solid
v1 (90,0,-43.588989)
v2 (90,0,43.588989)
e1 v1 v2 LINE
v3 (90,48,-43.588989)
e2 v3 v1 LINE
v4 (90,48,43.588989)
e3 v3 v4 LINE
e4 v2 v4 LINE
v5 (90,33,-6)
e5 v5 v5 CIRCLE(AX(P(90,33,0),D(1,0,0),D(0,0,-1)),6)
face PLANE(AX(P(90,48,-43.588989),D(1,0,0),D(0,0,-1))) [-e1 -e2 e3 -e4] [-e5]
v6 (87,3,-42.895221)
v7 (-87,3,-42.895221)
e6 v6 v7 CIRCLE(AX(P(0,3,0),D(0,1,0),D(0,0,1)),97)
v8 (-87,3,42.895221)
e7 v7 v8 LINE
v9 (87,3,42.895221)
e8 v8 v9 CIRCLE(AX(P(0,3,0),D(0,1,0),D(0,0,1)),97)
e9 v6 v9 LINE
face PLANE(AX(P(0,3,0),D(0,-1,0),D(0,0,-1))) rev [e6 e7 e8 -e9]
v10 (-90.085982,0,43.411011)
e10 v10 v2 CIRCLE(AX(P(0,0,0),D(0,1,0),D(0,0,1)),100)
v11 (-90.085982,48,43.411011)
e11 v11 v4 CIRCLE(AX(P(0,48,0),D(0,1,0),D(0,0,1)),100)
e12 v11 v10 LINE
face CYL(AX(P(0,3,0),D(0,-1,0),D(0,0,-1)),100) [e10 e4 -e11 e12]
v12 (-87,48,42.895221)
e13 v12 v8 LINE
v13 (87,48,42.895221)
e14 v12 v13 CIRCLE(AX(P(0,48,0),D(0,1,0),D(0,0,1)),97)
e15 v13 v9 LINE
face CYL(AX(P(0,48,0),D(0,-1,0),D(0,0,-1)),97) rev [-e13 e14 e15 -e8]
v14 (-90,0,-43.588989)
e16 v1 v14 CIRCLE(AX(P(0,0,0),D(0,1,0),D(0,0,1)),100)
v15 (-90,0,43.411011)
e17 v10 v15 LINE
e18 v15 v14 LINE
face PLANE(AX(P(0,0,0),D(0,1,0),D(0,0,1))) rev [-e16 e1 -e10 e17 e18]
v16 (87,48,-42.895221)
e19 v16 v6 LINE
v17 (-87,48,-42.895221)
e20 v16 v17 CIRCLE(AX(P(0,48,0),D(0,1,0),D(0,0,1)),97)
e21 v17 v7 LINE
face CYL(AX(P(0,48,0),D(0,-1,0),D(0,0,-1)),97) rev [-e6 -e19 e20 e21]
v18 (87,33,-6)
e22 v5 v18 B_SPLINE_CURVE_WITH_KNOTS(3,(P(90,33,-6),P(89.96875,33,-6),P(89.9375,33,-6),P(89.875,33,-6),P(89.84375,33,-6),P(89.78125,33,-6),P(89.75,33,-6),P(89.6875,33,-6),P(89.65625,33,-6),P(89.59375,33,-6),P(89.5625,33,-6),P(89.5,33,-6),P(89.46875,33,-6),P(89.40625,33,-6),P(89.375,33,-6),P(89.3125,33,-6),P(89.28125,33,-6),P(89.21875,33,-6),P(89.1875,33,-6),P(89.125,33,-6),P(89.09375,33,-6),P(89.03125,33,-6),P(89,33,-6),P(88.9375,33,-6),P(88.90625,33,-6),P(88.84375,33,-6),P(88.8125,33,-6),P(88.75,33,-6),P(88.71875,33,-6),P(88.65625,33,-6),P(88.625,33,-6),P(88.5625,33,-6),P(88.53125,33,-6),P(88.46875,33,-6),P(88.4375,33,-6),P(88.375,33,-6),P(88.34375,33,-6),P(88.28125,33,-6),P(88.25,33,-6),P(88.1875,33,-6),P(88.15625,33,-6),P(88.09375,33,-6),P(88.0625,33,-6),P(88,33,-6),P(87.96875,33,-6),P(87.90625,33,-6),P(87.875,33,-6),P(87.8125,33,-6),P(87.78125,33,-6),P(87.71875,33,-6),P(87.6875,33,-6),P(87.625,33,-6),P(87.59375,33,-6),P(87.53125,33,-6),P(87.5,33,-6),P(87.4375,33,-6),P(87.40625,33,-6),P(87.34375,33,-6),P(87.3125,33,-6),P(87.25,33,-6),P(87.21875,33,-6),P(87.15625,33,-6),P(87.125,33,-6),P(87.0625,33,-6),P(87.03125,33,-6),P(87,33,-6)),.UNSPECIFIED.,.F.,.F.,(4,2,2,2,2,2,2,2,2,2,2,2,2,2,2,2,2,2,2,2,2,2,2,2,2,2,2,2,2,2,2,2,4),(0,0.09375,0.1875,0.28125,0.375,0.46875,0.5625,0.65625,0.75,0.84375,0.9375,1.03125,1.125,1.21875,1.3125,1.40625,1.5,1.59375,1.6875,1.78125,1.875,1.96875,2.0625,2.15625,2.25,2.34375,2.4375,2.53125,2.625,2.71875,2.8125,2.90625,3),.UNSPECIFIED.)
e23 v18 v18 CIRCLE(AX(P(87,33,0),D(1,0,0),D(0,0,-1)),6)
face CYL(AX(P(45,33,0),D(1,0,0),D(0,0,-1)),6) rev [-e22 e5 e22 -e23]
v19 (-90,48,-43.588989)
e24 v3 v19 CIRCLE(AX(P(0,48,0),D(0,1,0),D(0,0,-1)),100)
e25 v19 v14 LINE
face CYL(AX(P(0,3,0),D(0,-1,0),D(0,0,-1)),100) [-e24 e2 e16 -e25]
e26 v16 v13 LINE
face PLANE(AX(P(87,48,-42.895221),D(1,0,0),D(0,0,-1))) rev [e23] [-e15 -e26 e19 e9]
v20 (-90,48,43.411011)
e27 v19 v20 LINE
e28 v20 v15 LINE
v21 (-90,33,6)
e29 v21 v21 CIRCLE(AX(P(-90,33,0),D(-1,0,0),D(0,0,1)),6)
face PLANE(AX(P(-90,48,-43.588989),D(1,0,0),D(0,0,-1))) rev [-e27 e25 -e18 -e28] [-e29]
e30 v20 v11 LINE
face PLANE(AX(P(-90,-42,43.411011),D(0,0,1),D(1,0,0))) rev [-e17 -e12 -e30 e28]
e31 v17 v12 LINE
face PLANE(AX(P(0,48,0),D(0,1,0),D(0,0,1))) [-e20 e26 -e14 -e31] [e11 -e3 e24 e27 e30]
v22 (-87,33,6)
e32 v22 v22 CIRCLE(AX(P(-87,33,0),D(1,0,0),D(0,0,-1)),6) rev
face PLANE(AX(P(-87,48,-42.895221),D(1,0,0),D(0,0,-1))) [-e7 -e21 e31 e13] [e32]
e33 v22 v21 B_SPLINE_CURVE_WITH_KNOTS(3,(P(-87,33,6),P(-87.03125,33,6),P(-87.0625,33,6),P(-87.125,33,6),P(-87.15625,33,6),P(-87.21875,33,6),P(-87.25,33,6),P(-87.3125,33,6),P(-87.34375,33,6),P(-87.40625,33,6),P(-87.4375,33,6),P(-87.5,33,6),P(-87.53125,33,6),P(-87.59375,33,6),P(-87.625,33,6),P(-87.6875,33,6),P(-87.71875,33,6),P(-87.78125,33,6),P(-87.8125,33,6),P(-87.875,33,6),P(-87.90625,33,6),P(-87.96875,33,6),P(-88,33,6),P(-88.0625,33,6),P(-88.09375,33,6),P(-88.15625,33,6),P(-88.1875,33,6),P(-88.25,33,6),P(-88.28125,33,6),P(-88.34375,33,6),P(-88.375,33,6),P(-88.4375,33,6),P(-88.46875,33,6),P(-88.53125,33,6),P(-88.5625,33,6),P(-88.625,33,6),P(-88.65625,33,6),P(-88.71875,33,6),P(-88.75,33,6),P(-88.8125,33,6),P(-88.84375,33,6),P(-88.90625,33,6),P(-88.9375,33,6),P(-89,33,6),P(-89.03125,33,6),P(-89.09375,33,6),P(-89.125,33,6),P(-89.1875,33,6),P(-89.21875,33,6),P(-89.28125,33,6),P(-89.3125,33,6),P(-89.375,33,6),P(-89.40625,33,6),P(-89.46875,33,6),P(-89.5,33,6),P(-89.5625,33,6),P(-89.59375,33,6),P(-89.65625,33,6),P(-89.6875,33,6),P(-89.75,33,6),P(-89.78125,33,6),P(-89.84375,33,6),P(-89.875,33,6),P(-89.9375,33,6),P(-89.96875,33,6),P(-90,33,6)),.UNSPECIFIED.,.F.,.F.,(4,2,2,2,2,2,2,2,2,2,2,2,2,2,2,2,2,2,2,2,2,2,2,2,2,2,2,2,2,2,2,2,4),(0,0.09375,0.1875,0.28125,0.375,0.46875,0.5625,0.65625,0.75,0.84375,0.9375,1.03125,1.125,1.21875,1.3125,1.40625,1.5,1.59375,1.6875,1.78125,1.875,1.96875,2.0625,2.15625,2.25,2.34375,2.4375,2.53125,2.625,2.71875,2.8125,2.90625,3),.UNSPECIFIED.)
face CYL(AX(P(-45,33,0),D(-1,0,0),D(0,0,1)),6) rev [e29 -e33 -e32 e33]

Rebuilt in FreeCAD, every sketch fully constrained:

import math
import FreeCAD as App
import Part
import Sketcher

V = App.Vector
Q = App.Units.Quantity


def add_polygon(sketch, points):
    """Adds a closed chain of lines whose ends are joined by coincident constraints."""
    first, n = sketch.GeometryCount, len(points)
    for a, b in zip(points, points[1:] + points[:1]):
        sketch.addGeometry(Part.LineSegment(App.Vector(*a, 0), App.Vector(*b, 0)), False)
    for i in range(n):
        sketch.addConstraint(Sketcher.Constraint("Coincident", first + i, 2, first + (i + 1) % n, 1))

doc = App.newDocument("Part")
body = doc.addObject("PartDesign::Body", "Body")

# Sketch on XZ plane
sketch1 = doc.addObject("Sketcher::SketchObject", "Sketch")
body.addObject(sketch1)
sketch1.AttachmentSupport = (doc.XZ_Plane, [""])
sketch1.MapMode = "FlatFace"
sketch1.addGeometry(Part.Circle(V(0, 0, 0), V(0, 0, 1), 100), False)
sketch1.addConstraint([
    Sketcher.Constraint("Coincident", 0, 3, -1, 1),
    Sketcher.Constraint("Diameter", 0, Q("200 mm")),
])
pad1 = doc.addObject("PartDesign::Pad", "Pad")
body.addObject(pad1)
pad1.Profile = sketch1
pad1.Length = 3
pad1.Reversed = True

# Sketch on XZ plane
sketch2 = doc.addObject("Sketcher::SketchObject", "Sketch001")
body.addObject(sketch2)
sketch2.AttachmentSupport = (doc.XZ_Plane, [""])
sketch2.MapMode = "FlatFace"
sketch2.AttachmentOffset = App.Placement(V(0, 0, -3), App.Rotation())
add_polygon(sketch2, [(87, -43.6), (87, 43.4), (90, 43.4), (90, -43.6)])  # lines 0-3
sketch2.addConstraint([
    Sketcher.Constraint("Vertical", 0),
    Sketcher.Constraint("Horizontal", 1),
    Sketcher.Constraint("Vertical", 2),
    Sketcher.Constraint("Horizontal", 3),
    Sketcher.Constraint("DistanceX", 1, 1, 1, 2, Q("3 mm")),
    Sketcher.Constraint("DistanceY", 0, 1, 0, 2, Q("87 mm")),
    Sketcher.Constraint("DistanceX", -1, 1, 0, 2, Q("87 mm")),
    Sketcher.Constraint("DistanceY", -1, 1, 0, 2, Q("43.411011 mm")),
])
pad2 = doc.addObject("PartDesign::Pad", "Pad001")
body.addObject(pad2)
pad2.Profile = sketch2
pad2.Length = 45
pad2.Reversed = True

# Sketch on XZ plane
sketch3 = doc.addObject("Sketcher::SketchObject", "Sketch002")
body.addObject(sketch3)
sketch3.AttachmentSupport = (doc.XZ_Plane, [""])
sketch3.MapMode = "FlatFace"
sketch3.AttachmentOffset = App.Placement(V(0, 0, -3), App.Rotation())
add_polygon(sketch3, [(-90, -43.6), (-90, 43.4), (-87, 43.4), (-87, -43.6)])  # lines 0-3
sketch3.addConstraint([
    Sketcher.Constraint("Vertical", 0),
    Sketcher.Constraint("Horizontal", 1),
    Sketcher.Constraint("Vertical", 2),
    Sketcher.Constraint("Horizontal", 3),
    Sketcher.Constraint("DistanceX", 1, 1, 1, 2, Q("3 mm")),
    Sketcher.Constraint("DistanceY", 0, 1, 0, 2, Q("87 mm")),
    Sketcher.Constraint("DistanceX", 0, 2, -1, 1, Q("90 mm")),
    Sketcher.Constraint("DistanceY", -1, 1, 0, 2, Q("43.411011 mm")),
])
pad3 = doc.addObject("PartDesign::Pad", "Pad002")
body.addObject(pad3)
pad3.Profile = sketch3
pad3.Length = 45
pad3.Reversed = True

# Sketch on XZ plane
sketch4 = doc.addObject("Sketcher::SketchObject", "Sketch003")
body.addObject(sketch4)
sketch4.AttachmentSupport = (doc.XZ_Plane, [""])
sketch4.MapMode = "FlatFace"
sketch4.AttachmentOffset = App.Placement(V(0, 0, -3), App.Rotation())
add_polygon(sketch4, [(90, -44), (90, 51), (114, 51), (114, -44)])  # lines 0-3
sketch4.addConstraint([
    Sketcher.Constraint("Vertical", 0),
    Sketcher.Constraint("Horizontal", 1),
    Sketcher.Constraint("Vertical", 2),
    Sketcher.Constraint("Horizontal", 3),
    Sketcher.Constraint("DistanceX", -1, 1, 0, 2, Q("90 mm")),
    Sketcher.Constraint("DistanceX", 1, 1, 1, 2, Q("23.719661 mm")),
    Sketcher.Constraint("DistanceY", 0, 1, 0, 2, Q("94.301811 mm")),
    Sketcher.Constraint("DistanceY", -1, 1, 0, 2, Q("50.712822 mm")),
])
pocket1 = doc.addObject("PartDesign::Pocket", "Pocket")
body.addObject(pocket1)
pocket1.Profile = sketch4
pocket1.Length = 45
pocket1.Reversed = True

# Sketch on XZ plane
sketch5 = doc.addObject("Sketcher::SketchObject", "Sketch004")
body.addObject(sketch5)
sketch5.AttachmentSupport = (doc.XZ_Plane, [""])
sketch5.MapMode = "FlatFace"
sketch5.AttachmentOffset = App.Placement(V(0, 0, -3), App.Rotation())
add_polygon(sketch5, [(-114, -49), (-114, 43), (-90, 43), (-90, -49)])  # lines 0-3
sketch5.addConstraint([
    Sketcher.Constraint("Vertical", 0),
    Sketcher.Constraint("Horizontal", 1),
    Sketcher.Constraint("Vertical", 2),
    Sketcher.Constraint("Horizontal", 3),
    Sketcher.Constraint("DistanceX", 1, 2, -1, 1, Q("90 mm")),
    Sketcher.Constraint("DistanceX", 1, 1, 1, 2, Q("23.969699 mm")),
    Sketcher.Constraint("DistanceY", 0, 1, 0, 2, Q("92.447375 mm")),
    Sketcher.Constraint("DistanceY", -1, 1, 0, 2, Q("43.411011 mm")),
])
pocket2 = doc.addObject("PartDesign::Pocket", "Pocket001")
body.addObject(pocket2)
pocket2.Profile = sketch5
pocket2.Length = 45
pocket2.Reversed = True

# Sketch on YZ plane
sketch6 = doc.addObject("Sketcher::SketchObject", "Sketch005")
body.addObject(sketch6)
sketch6.AttachmentSupport = (doc.YZ_Plane, [""])
sketch6.MapMode = "FlatFace"
sketch6.AttachmentOffset = App.Placement(V(0, 0, -90), App.Rotation())
sketch6.addGeometry(Part.Circle(V(33, 0, 0), V(0, 0, 1), 6), False)
sketch6.addConstraint([
    Sketcher.Constraint("PointOnObject", 0, 3, -1),
    Sketcher.Constraint("Diameter", 0, Q("12 mm")),
    Sketcher.Constraint("DistanceX", -1, 1, 0, 3, Q("33 mm")),
])
pocket3 = doc.addObject("PartDesign::Pocket", "Pocket002")
body.addObject(pocket3)
pocket3.Profile = sketch6
pocket3.Length = 45
pocket3.Reversed = True

# Sketch on YZ plane
sketch7 = doc.addObject("Sketcher::SketchObject", "Sketch006")
body.addObject(sketch7)
sketch7.AttachmentSupport = (doc.YZ_Plane, [""])
sketch7.MapMode = "FlatFace"
sketch7.AttachmentOffset = App.Placement(V(0, 0, 90), App.Rotation())
sketch7.addGeometry(Part.Circle(V(33, 0, 0), V(0, 0, 1), 6), False)
sketch7.addConstraint([
    Sketcher.Constraint("PointOnObject", 0, 3, -1),
    Sketcher.Constraint("Diameter", 0, Q("12 mm")),
    Sketcher.Constraint("DistanceX", -1, 1, 0, 3, Q("33 mm")),
])
pocket4 = doc.addObject("PartDesign::Pocket", "Pocket003")
body.addObject(pocket4)
pocket4.Profile = sketch7
pocket4.Length = 45

# Sketch on XZ plane
sketch8 = doc.addObject("Sketcher::SketchObject", "Sketch007")
body.addObject(sketch8)
sketch8.AttachmentSupport = (doc.XZ_Plane, [""])
sketch8.MapMode = "FlatFace"
sketch8.AttachmentOffset = App.Placement(V(0, 0, -3), App.Rotation())
sketch8.addGeometry([
    Part.ArcOfCircle(Part.Circle(V(0, 0, 0), V(0, 0, 1), 100), math.radians(26), math.radians(154)),  # 0
    Part.LineSegment(V(90, 43.59, 0), V(90, 43.41, 0)),  # 1
    Part.LineSegment(V(90, 43.41, 0), V(87, 43.41, 0)),  # 2
    Part.LineSegment(V(87, 43.41, 0), V(87, -43.59, 0)),  # 3
    Part.LineSegment(V(87, -43.59, 0), V(90, -43.59, 0)),  # 4
    Part.ArcOfCircle(Part.Circle(V(0, 0, 0), V(0, 0, 1), 100), math.radians(-154), math.radians(-26)),  # 5
    Part.LineSegment(V(-90, -43.59, 0), V(-87, -43.59, 0)),  # 6
    Part.LineSegment(V(-87, -43.59, 0), V(-87, 43.41, 0)),  # 7
    Part.LineSegment(V(-87, 43.41, 0), V(-90.09, 43.41, 0)),  # 8
], False)
sketch8.addConstraint([
    Sketcher.Constraint("Coincident", 0, 1, 1, 1),
    Sketcher.Constraint("Coincident", 1, 2, 2, 1),
    Sketcher.Constraint("Coincident", 2, 2, 3, 1),
    Sketcher.Constraint("Coincident", 3, 2, 4, 1),
    Sketcher.Constraint("Coincident", 4, 2, 5, 2),
    Sketcher.Constraint("Coincident", 5, 1, 6, 1),
    Sketcher.Constraint("Coincident", 6, 2, 7, 1),
    Sketcher.Constraint("Coincident", 7, 2, 8, 1),
    Sketcher.Constraint("Coincident", 8, 2, 0, 2),
    Sketcher.Constraint("Vertical", 1),
    Sketcher.Constraint("Horizontal", 2),
    Sketcher.Constraint("Vertical", 3),
    Sketcher.Constraint("Horizontal", 4),
    Sketcher.Constraint("Horizontal", 6),
    Sketcher.Constraint("Vertical", 7),
    Sketcher.Constraint("Horizontal", 8),
    Sketcher.Constraint("Coincident", 0, 3, -1, 1),
    Sketcher.Constraint("Coincident", 5, 3, -1, 1),
    Sketcher.Constraint("Equal", 0, 5),
    Sketcher.Constraint("Symmetric", 3, 2, 6, 2, -2),
    Sketcher.Constraint("Horizontal", 2, 2, 7, 2),
    Sketcher.Constraint("Vertical", 1, 2, 4, 2),
    Sketcher.Constraint("Radius", 0, Q("100 mm")),
    Sketcher.Constraint("DistanceX", 2, 2, 2, 1, Q("3 mm")),
    Sketcher.Constraint("DistanceY", 3, 2, 3, 1, Q("87 mm")),
    Sketcher.Constraint("DistanceX", -1, 1, 0, 1, Q("90 mm")),
])
pad4 = doc.addObject("PartDesign::Pad", "Pad003")
body.addObject(pad4)
pad4.Profile = sketch8
pad4.Length = 45
pad4.Reversed = True

# Sketch on XZ plane
sketch9 = doc.addObject("Sketcher::SketchObject", "Sketch008")
body.addObject(sketch9)
sketch9.AttachmentSupport = (doc.XZ_Plane, [""])
sketch9.MapMode = "FlatFace"
sketch9.AttachmentOffset = App.Placement(V(0, 0, -48), App.Rotation())
sketch9.addGeometry([
    Part.LineSegment(V(-87, 43, 0), V(-87, -43, 0)),
    Part.ArcOfCircle(Part.Circle(V(0, 0, 0), V(0, 0, 1), 97), math.radians(-154), math.radians(-26)),
    Part.LineSegment(V(87, -43, 0), V(87, 43, 0)),
    Part.ArcOfCircle(Part.Circle(V(0, 0, 0), V(0, 0, 1), 97), math.radians(26), math.radians(154)),
], False)
sketch9.addConstraint([
    Sketcher.Constraint("Coincident", 0, 2, 1, 1),
    Sketcher.Constraint("Coincident", 1, 2, 2, 1),
    Sketcher.Constraint("Coincident", 2, 2, 3, 1),
    Sketcher.Constraint("Coincident", 3, 2, 0, 1),
    Sketcher.Constraint("Vertical", 0),
    Sketcher.Constraint("Vertical", 2),
    Sketcher.Constraint("Coincident", 1, 3, -1, 1),
    Sketcher.Constraint("Coincident", 3, 3, -1, 1),
    Sketcher.Constraint("Equal", 1, 3),
    Sketcher.Constraint("Horizontal", 0, 2, 1, 2),
    Sketcher.Constraint("Radius", 1, Q("97 mm")),
    Sketcher.Constraint("DistanceX", 0, 2, -1, 1, Q("87 mm")),
])
pocket5 = doc.addObject("PartDesign::Pocket", "Pocket004")
body.addObject(pocket5)
pocket5.Profile = sketch9
pocket5.Length = 45
pocket5.Reversed = True

doc.recompute()
